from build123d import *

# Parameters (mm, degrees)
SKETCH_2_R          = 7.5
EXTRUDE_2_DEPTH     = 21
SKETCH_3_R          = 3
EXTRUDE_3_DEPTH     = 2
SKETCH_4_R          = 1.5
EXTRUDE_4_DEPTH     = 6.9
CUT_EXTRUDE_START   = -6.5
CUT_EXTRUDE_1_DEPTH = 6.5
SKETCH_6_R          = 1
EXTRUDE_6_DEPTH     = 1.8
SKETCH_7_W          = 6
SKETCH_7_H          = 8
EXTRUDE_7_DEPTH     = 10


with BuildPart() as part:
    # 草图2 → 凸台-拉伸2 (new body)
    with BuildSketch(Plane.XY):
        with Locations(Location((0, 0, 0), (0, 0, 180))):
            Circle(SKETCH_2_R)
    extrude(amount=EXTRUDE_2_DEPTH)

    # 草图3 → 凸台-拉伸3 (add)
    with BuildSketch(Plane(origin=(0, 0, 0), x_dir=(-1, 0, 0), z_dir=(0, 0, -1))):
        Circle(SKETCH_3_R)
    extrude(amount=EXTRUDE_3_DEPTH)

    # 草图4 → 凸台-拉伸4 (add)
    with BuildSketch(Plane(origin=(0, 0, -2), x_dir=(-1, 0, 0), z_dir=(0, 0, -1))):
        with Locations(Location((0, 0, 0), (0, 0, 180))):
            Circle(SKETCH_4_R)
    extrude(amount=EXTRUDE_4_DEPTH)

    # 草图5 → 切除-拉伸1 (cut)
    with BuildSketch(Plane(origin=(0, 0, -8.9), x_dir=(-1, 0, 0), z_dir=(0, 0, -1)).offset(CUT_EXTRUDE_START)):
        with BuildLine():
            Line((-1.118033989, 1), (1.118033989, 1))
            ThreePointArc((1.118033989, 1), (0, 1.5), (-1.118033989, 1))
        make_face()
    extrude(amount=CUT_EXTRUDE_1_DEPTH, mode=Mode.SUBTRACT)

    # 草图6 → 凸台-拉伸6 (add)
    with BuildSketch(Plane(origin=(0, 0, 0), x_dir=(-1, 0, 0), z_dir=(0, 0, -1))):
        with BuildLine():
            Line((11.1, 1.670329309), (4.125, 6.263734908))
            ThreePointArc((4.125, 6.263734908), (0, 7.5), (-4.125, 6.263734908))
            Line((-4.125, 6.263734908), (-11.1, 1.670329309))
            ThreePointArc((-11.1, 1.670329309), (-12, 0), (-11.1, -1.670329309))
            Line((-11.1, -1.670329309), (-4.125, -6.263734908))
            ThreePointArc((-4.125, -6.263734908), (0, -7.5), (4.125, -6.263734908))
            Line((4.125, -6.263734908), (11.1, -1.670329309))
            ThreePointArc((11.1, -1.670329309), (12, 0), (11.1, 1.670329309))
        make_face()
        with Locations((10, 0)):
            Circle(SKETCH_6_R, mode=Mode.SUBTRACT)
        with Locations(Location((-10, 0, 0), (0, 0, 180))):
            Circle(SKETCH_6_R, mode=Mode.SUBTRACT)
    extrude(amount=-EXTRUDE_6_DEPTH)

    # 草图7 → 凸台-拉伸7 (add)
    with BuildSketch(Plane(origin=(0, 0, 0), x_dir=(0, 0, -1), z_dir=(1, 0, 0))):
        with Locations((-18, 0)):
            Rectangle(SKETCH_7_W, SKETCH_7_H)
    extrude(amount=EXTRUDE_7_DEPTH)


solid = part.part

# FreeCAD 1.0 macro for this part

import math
import FreeCAD as App
import Part
import Sketcher
from FreeCAD import Vector


def add_polygon(sketch, points):
    """Adds a closed chain of lines whose ends are joined by coincident constraints."""
    first, n = sketch.GeometryCount, len(points)
    for a, b in zip(points, points[1:] + points[:1]):
        sketch.addGeometry(Part.LineSegment(App.Vector(*a, 0), App.Vector(*b, 0)), False)
    for i in range(n):
        sketch.addConstraint(Sketcher.Constraint("Coincident", first + i, 2, first + (i + 1) % n, 1))

doc = App.newDocument("Part")
body = doc.addObject("PartDesign::Body", "Body")

# Sketch on XY plane
sketch1 = body.newObject("Sketcher::SketchObject", "Sketch")
sketch1.AttachmentSupport = (doc.getObject("XY_Plane"), [""])
sketch1.MapMode = "FlatFace"
sketch1.addGeometry(Part.Circle(Vector(0, 0, 0), Vector(0, 0, 1), 8), False)
sketch1.addConstraint(Sketcher.Constraint("Coincident", 0, 3, -1, 1))
sketch1.addConstraint(Sketcher.Constraint("Diameter", 0, 15.0))
pad1 = body.newObject("PartDesign::Pad", "Pad")
pad1.Profile = sketch1
pad1.Length = 21

# Sketch on XY plane
sketch2 = body.newObject("Sketcher::SketchObject", "Sketch001")
sketch2.AttachmentSupport = (doc.getObject("XY_Plane"), [""])
sketch2.MapMode = "FlatFace"
sketch2.addGeometry(Part.Circle(Vector(0, 0, 0), Vector(0, 0, 1), 3), False)
sketch2.addConstraint(Sketcher.Constraint("Coincident", 0, 3, -1, 1))
sketch2.addConstraint(Sketcher.Constraint("Diameter", 0, 6.0))
pad2 = body.newObject("PartDesign::Pad", "Pad001")
pad2.Profile = sketch2
pad2.Length = 2
pad2.Reversed = True

# Sketch on XY plane
sketch3 = body.newObject("Sketcher::SketchObject", "Sketch002")
sketch3.AttachmentSupport = (doc.getObject("XY_Plane"), [""])
sketch3.MapMode = "FlatFace"
sketch3.AttachmentOffset = App.Placement(Vector(0, 0, -2), App.Rotation())
sketch3.addGeometry(Part.Circle(Vector(0, 0, 0), Vector(0, 0, 1), 1.5), False)
sketch3.addConstraint(Sketcher.Constraint("Coincident", 0, 3, -1, 1))
sketch3.addConstraint(Sketcher.Constraint("Diameter", 0, 3.0))
pad3 = body.newObject("PartDesign::Pad", "Pad002")
pad3.Profile = sketch3
pad3.Length = 6.9
pad3.Reversed = True

# Sketch on XY plane
sketch4 = body.newObject("Sketcher::SketchObject", "Sketch003")
sketch4.AttachmentSupport = (doc.getObject("XY_Plane"), [""])
sketch4.MapMode = "FlatFace"
sketch4.AttachmentOffset = App.Placement(Vector(0, 0, -2.4), App.Rotation())
sketch4.addGeometry(Part.LineSegment(Vector(1.1, 1, 0), Vector(-1.1, 1, 0)), False)
sketch4.addGeometry(Part.ArcOfCircle(Part.Circle(Vector(0, 0, 0), Vector(0, 0, 1), 1.5), math.radians(42), math.radians(138)), False)
sketch4.addConstraint(Sketcher.Constraint("Coincident", 0, 1, 1, 1))
sketch4.addConstraint(Sketcher.Constraint("Coincident", 1, 2, 0, 2))
sketch4.addConstraint(Sketcher.Constraint("Horizontal", 0))
sketch4.addConstraint(Sketcher.Constraint("Coincident", 1, 3, -1, 1))
sketch4.addConstraint(Sketcher.Constraint("Radius", 1, 1.5))
sketch4.addConstraint(Sketcher.Constraint("DistanceY", -1, 1, 0, 1, 1.0))
pocket1 = body.newObject("PartDesign::Pocket", "Pocket")
pocket1.Profile = sketch4
pocket1.Length = 6.5

# Sketch on XY plane
sketch5 = body.newObject("Sketcher::SketchObject", "Sketch004")
sketch5.AttachmentSupport = (doc.getObject("XY_Plane"), [""])
sketch5.MapMode = "FlatFace"
sketch5.addGeometry(Part.LineSegment(Vector(-11.1, 1.7, 0), Vector(-4.1, 6.3, 0)), False)
sketch5.addGeometry(Part.ArcOfCircle(Part.Circle(Vector(0, 0, 0), Vector(0, 0, 1), 7.5), math.radians(57), math.radians(123)), False)
sketch5.addGeometry(Part.LineSegment(Vector(4.1, 6.3, 0), Vector(11.1, 1.7, 0)), False)
sketch5.addGeometry(Part.ArcOfCircle(Part.Circle(Vector(10, 0, 0), Vector(0, 0, 1), 2), math.radians(-57), math.radians(57)), False)
sketch5.addGeometry(Part.LineSegment(Vector(11.1, -1.7, 0), Vector(4.1, -6.3, 0)), False)
sketch5.addGeometry(Part.ArcOfCircle(Part.Circle(Vector(0, 0, 0), Vector(0, 0, 1), 7.5), math.radians(-123), math.radians(-57)), False)
sketch5.addGeometry(Part.LineSegment(Vector(-4.1, -6.3, 0), Vector(-11.1, -1.7, 0)), False)
sketch5.addGeometry(Part.ArcOfCircle(Part.Circle(Vector(-10, 0, 0), Vector(0, 0, 1), 2), math.radians(123), math.radians(237)), False)
sketch5.addGeometry(Part.Circle(Vector(10, 0, 0), Vector(0, 0, 1), 1), False)
sketch5.addGeometry(Part.Circle(Vector(-10, 0, 0), Vector(0, 0, 1), 1), False)
sketch5.addConstraint(Sketcher.Constraint("Tangent", 0, 2, 1, 2))
sketch5.addConstraint(Sketcher.Constraint("Tangent", 1, 1, 2, 1))
sketch5.addConstraint(Sketcher.Constraint("Tangent", 2, 2, 3, 2))
sketch5.addConstraint(Sketcher.Constraint("Tangent", 3, 1, 4, 1))
sketch5.addConstraint(Sketcher.Constraint("Tangent", 4, 2, 5, 2))
sketch5.addConstraint(Sketcher.Constraint("Tangent", 5, 1, 6, 1))
sketch5.addConstraint(Sketcher.Constraint("Tangent", 6, 2, 7, 2))
sketch5.addConstraint(Sketcher.Constraint("Tangent", 7, 1, 0, 1))
sketch5.addConstraint(Sketcher.Constraint("Coincident", 1, 3, -1, 1))
sketch5.addConstraint(Sketcher.Constraint("Coincident", 5, 3, -1, 1))
sketch5.addConstraint(Sketcher.Constraint("Coincident", 8, 3, 3, 3))
sketch5.addConstraint(Sketcher.Constraint("Coincident", 9, 3, 7, 3))
sketch5.addConstraint(Sketcher.Constraint("Equal", 1, 5))
sketch5.addConstraint(Sketcher.Constraint("Equal", 3, 7))
sketch5.addConstraint(Sketcher.Constraint("Equal", 8, 9))
sketch5.addConstraint(Sketcher.Constraint("Symmetric", 3, 3, 7, 3, -1, 1))
sketch5.addConstraint(Sketcher.Constraint("PointOnObject", 3, 3, -1))
sketch5.addConstraint(Sketcher.Constraint("Diameter", 8, 2.0))
sketch5.addConstraint(Sketcher.Constraint("Radius", 3, 2.0))
sketch5.addConstraint(Sketcher.Constraint("Radius", 1, 7.5))
sketch5.addConstraint(Sketcher.Constraint("DistanceX", -1, 1, 3, 3, 10.0))
pad4 = body.newObject("PartDesign::Pad", "Pad003")
pad4.Profile = sketch5
pad4.Length = 1.8

# Sketch on YZ plane
sketch6 = body.newObject("Sketcher::SketchObject", "Sketch005")
sketch6.AttachmentSupport = (doc.getObject("YZ_Plane"), [""])
sketch6.MapMode = "FlatFace"
add_polygon(sketch6, [(4, 21), (-4, 21), (-4, 15), (4, 15)])  # lines 0-3
sketch6.addConstraint(Sketcher.Constraint("Horizontal", 0))
sketch6.addConstraint(Sketcher.Constraint("Vertical", 1))
sketch6.addConstraint(Sketcher.Constraint("Horizontal", 2))
sketch6.addConstraint(Sketcher.Constraint("Vertical", 3))
sketch6.addConstraint(Sketcher.Constraint("DistanceX", 0, 2, 0, 1, 8.0))
sketch6.addConstraint(Sketcher.Constraint("DistanceY", 1, 2, 1, 1, 6.0))
sketch6.addConstraint(Sketcher.Constraint("DistanceX", 0, 2, -1, 1, 4.0))
sketch6.addConstraint(Sketcher.Constraint("DistanceY", -1, 1, 0, 2, 21.0))
pad5 = body.newObject("PartDesign::Pad", "Pad004")
pad5.Profile = sketch6
pad5.Length = 10

doc.recompute()
